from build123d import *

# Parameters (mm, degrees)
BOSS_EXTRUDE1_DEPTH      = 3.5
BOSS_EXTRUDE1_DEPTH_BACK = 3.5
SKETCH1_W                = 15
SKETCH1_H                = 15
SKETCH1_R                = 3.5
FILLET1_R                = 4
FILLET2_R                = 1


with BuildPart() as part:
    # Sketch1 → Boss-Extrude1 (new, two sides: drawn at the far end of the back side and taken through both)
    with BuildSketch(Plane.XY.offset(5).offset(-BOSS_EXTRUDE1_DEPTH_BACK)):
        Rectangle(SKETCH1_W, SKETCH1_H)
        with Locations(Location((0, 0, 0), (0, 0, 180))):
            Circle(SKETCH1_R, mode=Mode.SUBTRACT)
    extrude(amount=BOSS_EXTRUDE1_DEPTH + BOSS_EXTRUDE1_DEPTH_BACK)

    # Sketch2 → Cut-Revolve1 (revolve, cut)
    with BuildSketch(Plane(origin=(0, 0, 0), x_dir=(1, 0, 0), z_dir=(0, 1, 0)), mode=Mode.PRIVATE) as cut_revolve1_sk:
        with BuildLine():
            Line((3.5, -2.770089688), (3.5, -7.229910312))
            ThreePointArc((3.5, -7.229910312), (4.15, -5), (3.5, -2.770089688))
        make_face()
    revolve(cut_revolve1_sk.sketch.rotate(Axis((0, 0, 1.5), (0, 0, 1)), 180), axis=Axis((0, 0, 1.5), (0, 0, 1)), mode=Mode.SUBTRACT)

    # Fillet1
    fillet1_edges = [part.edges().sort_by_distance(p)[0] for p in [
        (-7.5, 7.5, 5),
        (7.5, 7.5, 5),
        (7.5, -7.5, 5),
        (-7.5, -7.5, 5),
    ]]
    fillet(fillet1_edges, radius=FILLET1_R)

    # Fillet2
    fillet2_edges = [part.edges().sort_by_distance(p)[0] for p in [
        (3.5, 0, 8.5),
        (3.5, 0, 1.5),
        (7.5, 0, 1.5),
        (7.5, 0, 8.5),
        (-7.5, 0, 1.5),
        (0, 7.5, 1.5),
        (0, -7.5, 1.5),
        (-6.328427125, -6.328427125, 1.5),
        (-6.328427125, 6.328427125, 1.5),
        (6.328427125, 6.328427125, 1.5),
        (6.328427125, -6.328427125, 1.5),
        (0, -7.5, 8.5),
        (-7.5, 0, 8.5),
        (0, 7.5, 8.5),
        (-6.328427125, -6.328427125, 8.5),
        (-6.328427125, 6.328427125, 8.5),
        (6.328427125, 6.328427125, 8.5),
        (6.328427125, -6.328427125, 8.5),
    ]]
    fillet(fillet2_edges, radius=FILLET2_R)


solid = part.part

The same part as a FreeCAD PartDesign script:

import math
import FreeCAD as App
import Part
import Sketcher
from FreeCAD import Vector
Q = App.Units.Quantity


def edges_at(feature, points):
    """Names of the edges that pass closest to the given points."""
    edges = feature.Shape.Edges
    near = lambda p: min(range(len(edges)), key=lambda i: edges[i].distToShape(Part.Vertex(*p))[0])
    return sorted({f"Edge{near(p) + 1}" for p in points})


def add_polygon(sketch, points):
    """Adds a closed chain of lines whose ends are joined by coincident constraints."""
    first, n = sketch.GeometryCount, len(points)
    for a, b in zip(points, points[1:] + points[:1]):
        sketch.addGeometry(Part.LineSegment(App.Vector(*a, 0), App.Vector(*b, 0)), False)
    for i in range(n):
        sketch.addConstraint(Sketcher.Constraint("Coincident", first + i, 2, first + (i + 1) % n, 1))

doc = App.newDocument("Part")
body = doc.addObject("PartDesign::Body", "Body")

# Sketch on XY plane
sketch1 = body.newObject("Sketcher::SketchObject", "Sketch")
sketch1.AttachmentSupport = (doc.getObject("XY_Plane"), [""])
sketch1.MapMode = "FlatFace"
sketch1.AttachmentOffset = App.Placement(Vector(0, 0, 5), App.Rotation())
add_polygon(sketch1, [(-7.5, 7.5), (-7.5, -7.5), (7.5, -7.5), (7.5, 7.5)])  # lines 0-3
sketch1.addGeometry(Part.Circle(Vector(0, 0, 0), Vector(0, 0, 1), 3.5), False)  # 4
sketch1.addConstraint(Sketcher.Constraint("Vertical", 0))
sketch1.addConstraint(Sketcher.Constraint("Horizontal", 1))
sketch1.addConstraint(Sketcher.Constraint("Vertical", 2))
sketch1.addConstraint(Sketcher.Constraint("Horizontal", 3))
sketch1.addConstraint(Sketcher.Constraint("Coincident", 4, 3, -1, 1))
sketch1.addConstraint(Sketcher.Constraint("Symmetric", 0, 2, 2, 2, -1, 1))
sketch1.addConstraint(Sketcher.Constraint("Equal", 3, 0))
sketch1.addConstraint(Sketcher.Constraint("Diameter", 4, Q("7 mm")))
sketch1.addConstraint(Sketcher.Constraint("DistanceX", 1, 1, 1, 2, Q("15 mm")))
pad1 = body.newObject("PartDesign::Pad", "Pad")
pad1.Profile = sketch1
pad1.Type = "TwoLengths"
pad1.Length = 3.5
pad1.Length2 = 3.5

# Sketch on XZ plane
sketch2 = body.newObject("Sketcher::SketchObject", "Sketch001")
sketch2.AttachmentSupport = (doc.getObject("XZ_Plane"), [""])
sketch2.MapMode = "FlatFace"
sketch2.addGeometry(Part.LineSegment(Vector(3.5, 2.8, 0), Vector(3.5, 7.2, 0)), False)
sketch2.addGeometry(Part.ArcOfCircle(Part.Circle(Vector(0, 5, 0), Vector(0, 0, 1), 4.2), math.radians(-33), math.radians(33)), False)
sketch2.addConstraint(Sketcher.Constraint("Coincident", 0, 1, 1, 1))
sketch2.addConstraint(Sketcher.Constraint("Coincident", 1, 2, 0, 2))
sketch2.addConstraint(Sketcher.Constraint("Vertical", 0))
sketch2.addConstraint(Sketcher.Constraint("PointOnObject", 1, 3, -2))
sketch2.addConstraint(Sketcher.Constraint("Radius", 1, Q("4.15 mm")))
sketch2.addConstraint(Sketcher.Constraint("DistanceY", -1, 1, 1, 3, Q("5 mm")))
sketch2.addConstraint(Sketcher.Constraint("DistanceX", -1, 1, 0, 1, Q("3.5 mm")))
groove = body.newObject("PartDesign::Groove", "Groove")
groove.Profile = sketch2
groove.ReferenceAxis = (sketch2, ["V_Axis"])
groove.Angle = 360
doc.recompute()

fillet = body.newObject("PartDesign::Fillet", "Fillet")
fillet.Base = (groove, edges_at(groove, [
    (-7.5, 7.5, 5),
    (7.5, 7.5, 5),
    (7.5, -7.5, 5),
    (-7.5, -7.5, 5),
]))
fillet.Radius = 4
doc.recompute()

fillet2 = body.newObject("PartDesign::Fillet", "Fillet001")
fillet2.Base = (fillet, edges_at(fillet, [
    (3.5, 0, 8.5),
    (3.5, 0, 1.5),
    (7.5, 0, 1.5),
    (7.5, 0, 8.5),
    (-7.5, 0, 1.5),
    (0, 7.5, 1.5),
    (0, -7.5, 1.5),
    (-6.328, -6.328, 1.5),
    (-6.328, 6.328, 1.5),
    (6.328, 6.328, 1.5),
    (6.328, -6.328, 1.5),
    (0, -7.5, 8.5),
    (-7.5, 0, 8.5),
    (0, 7.5, 8.5),
    (-6.328, -6.328, 8.5),
    (-6.328, 6.328, 8.5),
    (6.328, 6.328, 8.5),
    (6.328, -6.328, 8.5),
]))
fillet2.Radius = 1

doc.recompute()
